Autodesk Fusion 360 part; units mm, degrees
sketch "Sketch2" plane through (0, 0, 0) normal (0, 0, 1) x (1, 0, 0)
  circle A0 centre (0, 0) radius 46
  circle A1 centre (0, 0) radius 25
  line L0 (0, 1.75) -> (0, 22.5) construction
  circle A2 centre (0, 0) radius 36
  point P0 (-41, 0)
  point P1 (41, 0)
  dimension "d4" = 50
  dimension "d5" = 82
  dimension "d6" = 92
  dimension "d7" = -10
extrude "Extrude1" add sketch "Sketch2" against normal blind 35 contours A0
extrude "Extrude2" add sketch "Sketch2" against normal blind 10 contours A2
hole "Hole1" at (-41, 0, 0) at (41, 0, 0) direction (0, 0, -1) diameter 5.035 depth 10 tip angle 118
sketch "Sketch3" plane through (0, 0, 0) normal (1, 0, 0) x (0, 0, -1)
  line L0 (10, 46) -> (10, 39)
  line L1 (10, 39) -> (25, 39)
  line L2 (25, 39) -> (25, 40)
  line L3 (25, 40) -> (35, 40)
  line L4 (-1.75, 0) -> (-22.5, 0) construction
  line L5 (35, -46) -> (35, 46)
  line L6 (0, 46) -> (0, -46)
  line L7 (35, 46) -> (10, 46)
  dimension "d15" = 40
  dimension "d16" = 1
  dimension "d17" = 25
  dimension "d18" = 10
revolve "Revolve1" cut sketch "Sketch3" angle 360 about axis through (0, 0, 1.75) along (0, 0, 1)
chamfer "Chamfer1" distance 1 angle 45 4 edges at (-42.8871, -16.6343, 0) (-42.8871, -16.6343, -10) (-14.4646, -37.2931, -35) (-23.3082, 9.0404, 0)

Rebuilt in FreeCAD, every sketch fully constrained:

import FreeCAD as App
import Part
import Sketcher

V = App.Vector


def edges_at(feature, points):
    """Names of the edges that pass closest to the given points."""
    edges = feature.Shape.Edges
    near = lambda p: min(range(len(edges)), key=lambda i: edges[i].distToShape(Part.Vertex(*p))[0])
    return sorted({f"Edge{near(p) + 1}" for p in points})

doc = App.newDocument("Part")
body = doc.addObject("PartDesign::Body", "Body")

# Sketch on XY plane
sketch1 = body.newObject("Sketcher::SketchObject", "Sketch")
sketch1.AttachmentSupport = (doc.getObject("XY_Plane"), [""])
sketch1.MapMode = "FlatFace"
sketch1.addGeometry(Part.Circle(V(0, 0, 0), V(0, 0, 1), 46), False)
sketch1.addGeometry(Part.Circle(V(0, 0, 0), V(0, 0, 1), 36), False)
sketch1.addConstraint(Sketcher.Constraint("Coincident", 0, 3, -1, 1))
sketch1.addConstraint(Sketcher.Constraint("Coincident", 1, 3, -1, 1))
sketch1.addConstraint(Sketcher.Constraint("Diameter", 0, 92.0))
sketch1.addConstraint(Sketcher.Constraint("Diameter", 1, 72.0))
pad1 = body.newObject("PartDesign::Pad", "Pad")
pad1.Profile = sketch1
pad1.Length = 35
pad1.Reversed = True

# Sketch on XY plane
sketch2 = body.newObject("Sketcher::SketchObject", "Sketch001")
sketch2.AttachmentSupport = (doc.getObject("XY_Plane"), [""])
sketch2.MapMode = "FlatFace"
sketch2.addGeometry(Part.Circle(V(0, 0, 0), V(0, 0, 1), 36), False)
sketch2.addGeometry(Part.Circle(V(0, 0, 0), V(0, 0, 1), 25), False)
sketch2.addConstraint(Sketcher.Constraint("Coincident", 0, 3, -1, 1))
sketch2.addConstraint(Sketcher.Constraint("Coincident", 1, 3, -1, 1))
sketch2.addConstraint(Sketcher.Constraint("Diameter", 1, 50.0))
sketch2.addConstraint(Sketcher.Constraint("Diameter", 0, 72.0))
pad2 = body.newObject("PartDesign::Pad", "Pad001")
pad2.Profile = sketch2
pad2.Length = 10
pad2.Reversed = True

# Sketch on XY plane
sketch3 = body.newObject("Sketcher::SketchObject", "Sketch002")
sketch3.AttachmentSupport = (doc.getObject("XY_Plane"), [""])
sketch3.MapMode = "FlatFace"
sketch3.addGeometry(Part.Circle(V(-41, 0, 0), V(0, 0, 1), 2.5), False)
sketch3.addGeometry(Part.Circle(V(41, 0, 0), V(0, 0, 1), 2.5), False)
sketch3.addConstraint(Sketcher.Constraint("Equal", 0, 1))
sketch3.addConstraint(Sketcher.Constraint("Symmetric", 0, 3, 1, 3, -1, 1))
sketch3.addConstraint(Sketcher.Constraint("PointOnObject", 0, 3, -1))
sketch3.addConstraint(Sketcher.Constraint("Diameter", 0, 5.035))
sketch3.addConstraint(Sketcher.Constraint("DistanceX", 0, 3, -1, 1, 41.0))
doc.recompute()
hole = body.newObject("PartDesign::Hole", "Hole")
hole.Profile = sketch3
hole.ThreadType = "None"
hole.Diameter = 5.035
hole.DepthType = "Dimension"
hole.Depth = 10
hole.DrillPoint = "Angled"
hole.DrillPointAngle = 118

# Sketch on YZ plane
sketch4 = body.newObject("Sketcher::SketchObject", "Sketch003")
sketch4.AttachmentSupport = (doc.getObject("YZ_Plane"), [""])
sketch4.MapMode = "FlatFace"
sketch4.addGeometry(Part.LineSegment(V(46, -35, 0), V(46, -10, 0)), False)
sketch4.addGeometry(Part.LineSegment(V(46, -10, 0), V(39, -10, 0)), False)
sketch4.addGeometry(Part.LineSegment(V(39, -10, 0), V(39, -25, 0)), False)
sketch4.addGeometry(Part.LineSegment(V(39, -25, 0), V(40, -25, 0)), False)
sketch4.addGeometry(Part.LineSegment(V(40, -25, 0), V(40, -35, 0)), False)
sketch4.addGeometry(Part.LineSegment(V(40, -35, 0), V(46, -35, 0)), False)
sketch4.addConstraint(Sketcher.Constraint("Coincident", 0, 2, 1, 1))
sketch4.addConstraint(Sketcher.Constraint("Coincident", 1, 2, 2, 1))
sketch4.addConstraint(Sketcher.Constraint("Coincident", 2, 2, 3, 1))
sketch4.addConstraint(Sketcher.Constraint("Coincident", 3, 2, 4, 1))
sketch4.addConstraint(Sketcher.Constraint("Coincident", 4, 2, 5, 1))
sketch4.addConstraint(Sketcher.Constraint("Coincident", 5, 2, 0, 1))
sketch4.addConstraint(Sketcher.Constraint("Vertical", 0))
sketch4.addConstraint(Sketcher.Constraint("Horizontal", 1))
sketch4.addConstraint(Sketcher.Constraint("Vertical", 2))
sketch4.addConstraint(Sketcher.Constraint("Horizontal", 3))
sketch4.addConstraint(Sketcher.Constraint("Vertical", 4))
sketch4.addConstraint(Sketcher.Constraint("Horizontal", 5))
sketch4.addConstraint(Sketcher.Constraint("DistanceX", 3, 1, 3, 2, 1.0))
sketch4.addConstraint(Sketcher.Constraint("DistanceY", 0, 1, 0, 2, 25.0))
sketch4.addConstraint(Sketcher.Constraint("DistanceY", 4, 2, 4, 1, 10.0))
sketch4.addConstraint(Sketcher.Constraint("DistanceY", 0, 2, -1, 1, 10.0))
sketch4.addConstraint(Sketcher.Constraint("DistanceX", -1, 1, 3, 2, 40.0))
sketch4.addConstraint(Sketcher.Constraint("DistanceX", 1, 2, 1, 1, 7.0))
groove = body.newObject("PartDesign::Groove", "Groove")
groove.Profile = sketch4
groove.ReferenceAxis = (sketch4, ["V_Axis"])
groove.Angle = 360
doc.recompute()

chamfer = body.newObject("PartDesign::Chamfer", "Chamfer")
chamfer.Base = (groove, edges_at(groove, [
    (-42.887, -16.634, 0),
    (-42.887, -16.634, -10),
    (-14.465, -37.293, -35),
    (-23.308, 9.04, 0),
]))
chamfer.Size = 1

doc.recompute()
